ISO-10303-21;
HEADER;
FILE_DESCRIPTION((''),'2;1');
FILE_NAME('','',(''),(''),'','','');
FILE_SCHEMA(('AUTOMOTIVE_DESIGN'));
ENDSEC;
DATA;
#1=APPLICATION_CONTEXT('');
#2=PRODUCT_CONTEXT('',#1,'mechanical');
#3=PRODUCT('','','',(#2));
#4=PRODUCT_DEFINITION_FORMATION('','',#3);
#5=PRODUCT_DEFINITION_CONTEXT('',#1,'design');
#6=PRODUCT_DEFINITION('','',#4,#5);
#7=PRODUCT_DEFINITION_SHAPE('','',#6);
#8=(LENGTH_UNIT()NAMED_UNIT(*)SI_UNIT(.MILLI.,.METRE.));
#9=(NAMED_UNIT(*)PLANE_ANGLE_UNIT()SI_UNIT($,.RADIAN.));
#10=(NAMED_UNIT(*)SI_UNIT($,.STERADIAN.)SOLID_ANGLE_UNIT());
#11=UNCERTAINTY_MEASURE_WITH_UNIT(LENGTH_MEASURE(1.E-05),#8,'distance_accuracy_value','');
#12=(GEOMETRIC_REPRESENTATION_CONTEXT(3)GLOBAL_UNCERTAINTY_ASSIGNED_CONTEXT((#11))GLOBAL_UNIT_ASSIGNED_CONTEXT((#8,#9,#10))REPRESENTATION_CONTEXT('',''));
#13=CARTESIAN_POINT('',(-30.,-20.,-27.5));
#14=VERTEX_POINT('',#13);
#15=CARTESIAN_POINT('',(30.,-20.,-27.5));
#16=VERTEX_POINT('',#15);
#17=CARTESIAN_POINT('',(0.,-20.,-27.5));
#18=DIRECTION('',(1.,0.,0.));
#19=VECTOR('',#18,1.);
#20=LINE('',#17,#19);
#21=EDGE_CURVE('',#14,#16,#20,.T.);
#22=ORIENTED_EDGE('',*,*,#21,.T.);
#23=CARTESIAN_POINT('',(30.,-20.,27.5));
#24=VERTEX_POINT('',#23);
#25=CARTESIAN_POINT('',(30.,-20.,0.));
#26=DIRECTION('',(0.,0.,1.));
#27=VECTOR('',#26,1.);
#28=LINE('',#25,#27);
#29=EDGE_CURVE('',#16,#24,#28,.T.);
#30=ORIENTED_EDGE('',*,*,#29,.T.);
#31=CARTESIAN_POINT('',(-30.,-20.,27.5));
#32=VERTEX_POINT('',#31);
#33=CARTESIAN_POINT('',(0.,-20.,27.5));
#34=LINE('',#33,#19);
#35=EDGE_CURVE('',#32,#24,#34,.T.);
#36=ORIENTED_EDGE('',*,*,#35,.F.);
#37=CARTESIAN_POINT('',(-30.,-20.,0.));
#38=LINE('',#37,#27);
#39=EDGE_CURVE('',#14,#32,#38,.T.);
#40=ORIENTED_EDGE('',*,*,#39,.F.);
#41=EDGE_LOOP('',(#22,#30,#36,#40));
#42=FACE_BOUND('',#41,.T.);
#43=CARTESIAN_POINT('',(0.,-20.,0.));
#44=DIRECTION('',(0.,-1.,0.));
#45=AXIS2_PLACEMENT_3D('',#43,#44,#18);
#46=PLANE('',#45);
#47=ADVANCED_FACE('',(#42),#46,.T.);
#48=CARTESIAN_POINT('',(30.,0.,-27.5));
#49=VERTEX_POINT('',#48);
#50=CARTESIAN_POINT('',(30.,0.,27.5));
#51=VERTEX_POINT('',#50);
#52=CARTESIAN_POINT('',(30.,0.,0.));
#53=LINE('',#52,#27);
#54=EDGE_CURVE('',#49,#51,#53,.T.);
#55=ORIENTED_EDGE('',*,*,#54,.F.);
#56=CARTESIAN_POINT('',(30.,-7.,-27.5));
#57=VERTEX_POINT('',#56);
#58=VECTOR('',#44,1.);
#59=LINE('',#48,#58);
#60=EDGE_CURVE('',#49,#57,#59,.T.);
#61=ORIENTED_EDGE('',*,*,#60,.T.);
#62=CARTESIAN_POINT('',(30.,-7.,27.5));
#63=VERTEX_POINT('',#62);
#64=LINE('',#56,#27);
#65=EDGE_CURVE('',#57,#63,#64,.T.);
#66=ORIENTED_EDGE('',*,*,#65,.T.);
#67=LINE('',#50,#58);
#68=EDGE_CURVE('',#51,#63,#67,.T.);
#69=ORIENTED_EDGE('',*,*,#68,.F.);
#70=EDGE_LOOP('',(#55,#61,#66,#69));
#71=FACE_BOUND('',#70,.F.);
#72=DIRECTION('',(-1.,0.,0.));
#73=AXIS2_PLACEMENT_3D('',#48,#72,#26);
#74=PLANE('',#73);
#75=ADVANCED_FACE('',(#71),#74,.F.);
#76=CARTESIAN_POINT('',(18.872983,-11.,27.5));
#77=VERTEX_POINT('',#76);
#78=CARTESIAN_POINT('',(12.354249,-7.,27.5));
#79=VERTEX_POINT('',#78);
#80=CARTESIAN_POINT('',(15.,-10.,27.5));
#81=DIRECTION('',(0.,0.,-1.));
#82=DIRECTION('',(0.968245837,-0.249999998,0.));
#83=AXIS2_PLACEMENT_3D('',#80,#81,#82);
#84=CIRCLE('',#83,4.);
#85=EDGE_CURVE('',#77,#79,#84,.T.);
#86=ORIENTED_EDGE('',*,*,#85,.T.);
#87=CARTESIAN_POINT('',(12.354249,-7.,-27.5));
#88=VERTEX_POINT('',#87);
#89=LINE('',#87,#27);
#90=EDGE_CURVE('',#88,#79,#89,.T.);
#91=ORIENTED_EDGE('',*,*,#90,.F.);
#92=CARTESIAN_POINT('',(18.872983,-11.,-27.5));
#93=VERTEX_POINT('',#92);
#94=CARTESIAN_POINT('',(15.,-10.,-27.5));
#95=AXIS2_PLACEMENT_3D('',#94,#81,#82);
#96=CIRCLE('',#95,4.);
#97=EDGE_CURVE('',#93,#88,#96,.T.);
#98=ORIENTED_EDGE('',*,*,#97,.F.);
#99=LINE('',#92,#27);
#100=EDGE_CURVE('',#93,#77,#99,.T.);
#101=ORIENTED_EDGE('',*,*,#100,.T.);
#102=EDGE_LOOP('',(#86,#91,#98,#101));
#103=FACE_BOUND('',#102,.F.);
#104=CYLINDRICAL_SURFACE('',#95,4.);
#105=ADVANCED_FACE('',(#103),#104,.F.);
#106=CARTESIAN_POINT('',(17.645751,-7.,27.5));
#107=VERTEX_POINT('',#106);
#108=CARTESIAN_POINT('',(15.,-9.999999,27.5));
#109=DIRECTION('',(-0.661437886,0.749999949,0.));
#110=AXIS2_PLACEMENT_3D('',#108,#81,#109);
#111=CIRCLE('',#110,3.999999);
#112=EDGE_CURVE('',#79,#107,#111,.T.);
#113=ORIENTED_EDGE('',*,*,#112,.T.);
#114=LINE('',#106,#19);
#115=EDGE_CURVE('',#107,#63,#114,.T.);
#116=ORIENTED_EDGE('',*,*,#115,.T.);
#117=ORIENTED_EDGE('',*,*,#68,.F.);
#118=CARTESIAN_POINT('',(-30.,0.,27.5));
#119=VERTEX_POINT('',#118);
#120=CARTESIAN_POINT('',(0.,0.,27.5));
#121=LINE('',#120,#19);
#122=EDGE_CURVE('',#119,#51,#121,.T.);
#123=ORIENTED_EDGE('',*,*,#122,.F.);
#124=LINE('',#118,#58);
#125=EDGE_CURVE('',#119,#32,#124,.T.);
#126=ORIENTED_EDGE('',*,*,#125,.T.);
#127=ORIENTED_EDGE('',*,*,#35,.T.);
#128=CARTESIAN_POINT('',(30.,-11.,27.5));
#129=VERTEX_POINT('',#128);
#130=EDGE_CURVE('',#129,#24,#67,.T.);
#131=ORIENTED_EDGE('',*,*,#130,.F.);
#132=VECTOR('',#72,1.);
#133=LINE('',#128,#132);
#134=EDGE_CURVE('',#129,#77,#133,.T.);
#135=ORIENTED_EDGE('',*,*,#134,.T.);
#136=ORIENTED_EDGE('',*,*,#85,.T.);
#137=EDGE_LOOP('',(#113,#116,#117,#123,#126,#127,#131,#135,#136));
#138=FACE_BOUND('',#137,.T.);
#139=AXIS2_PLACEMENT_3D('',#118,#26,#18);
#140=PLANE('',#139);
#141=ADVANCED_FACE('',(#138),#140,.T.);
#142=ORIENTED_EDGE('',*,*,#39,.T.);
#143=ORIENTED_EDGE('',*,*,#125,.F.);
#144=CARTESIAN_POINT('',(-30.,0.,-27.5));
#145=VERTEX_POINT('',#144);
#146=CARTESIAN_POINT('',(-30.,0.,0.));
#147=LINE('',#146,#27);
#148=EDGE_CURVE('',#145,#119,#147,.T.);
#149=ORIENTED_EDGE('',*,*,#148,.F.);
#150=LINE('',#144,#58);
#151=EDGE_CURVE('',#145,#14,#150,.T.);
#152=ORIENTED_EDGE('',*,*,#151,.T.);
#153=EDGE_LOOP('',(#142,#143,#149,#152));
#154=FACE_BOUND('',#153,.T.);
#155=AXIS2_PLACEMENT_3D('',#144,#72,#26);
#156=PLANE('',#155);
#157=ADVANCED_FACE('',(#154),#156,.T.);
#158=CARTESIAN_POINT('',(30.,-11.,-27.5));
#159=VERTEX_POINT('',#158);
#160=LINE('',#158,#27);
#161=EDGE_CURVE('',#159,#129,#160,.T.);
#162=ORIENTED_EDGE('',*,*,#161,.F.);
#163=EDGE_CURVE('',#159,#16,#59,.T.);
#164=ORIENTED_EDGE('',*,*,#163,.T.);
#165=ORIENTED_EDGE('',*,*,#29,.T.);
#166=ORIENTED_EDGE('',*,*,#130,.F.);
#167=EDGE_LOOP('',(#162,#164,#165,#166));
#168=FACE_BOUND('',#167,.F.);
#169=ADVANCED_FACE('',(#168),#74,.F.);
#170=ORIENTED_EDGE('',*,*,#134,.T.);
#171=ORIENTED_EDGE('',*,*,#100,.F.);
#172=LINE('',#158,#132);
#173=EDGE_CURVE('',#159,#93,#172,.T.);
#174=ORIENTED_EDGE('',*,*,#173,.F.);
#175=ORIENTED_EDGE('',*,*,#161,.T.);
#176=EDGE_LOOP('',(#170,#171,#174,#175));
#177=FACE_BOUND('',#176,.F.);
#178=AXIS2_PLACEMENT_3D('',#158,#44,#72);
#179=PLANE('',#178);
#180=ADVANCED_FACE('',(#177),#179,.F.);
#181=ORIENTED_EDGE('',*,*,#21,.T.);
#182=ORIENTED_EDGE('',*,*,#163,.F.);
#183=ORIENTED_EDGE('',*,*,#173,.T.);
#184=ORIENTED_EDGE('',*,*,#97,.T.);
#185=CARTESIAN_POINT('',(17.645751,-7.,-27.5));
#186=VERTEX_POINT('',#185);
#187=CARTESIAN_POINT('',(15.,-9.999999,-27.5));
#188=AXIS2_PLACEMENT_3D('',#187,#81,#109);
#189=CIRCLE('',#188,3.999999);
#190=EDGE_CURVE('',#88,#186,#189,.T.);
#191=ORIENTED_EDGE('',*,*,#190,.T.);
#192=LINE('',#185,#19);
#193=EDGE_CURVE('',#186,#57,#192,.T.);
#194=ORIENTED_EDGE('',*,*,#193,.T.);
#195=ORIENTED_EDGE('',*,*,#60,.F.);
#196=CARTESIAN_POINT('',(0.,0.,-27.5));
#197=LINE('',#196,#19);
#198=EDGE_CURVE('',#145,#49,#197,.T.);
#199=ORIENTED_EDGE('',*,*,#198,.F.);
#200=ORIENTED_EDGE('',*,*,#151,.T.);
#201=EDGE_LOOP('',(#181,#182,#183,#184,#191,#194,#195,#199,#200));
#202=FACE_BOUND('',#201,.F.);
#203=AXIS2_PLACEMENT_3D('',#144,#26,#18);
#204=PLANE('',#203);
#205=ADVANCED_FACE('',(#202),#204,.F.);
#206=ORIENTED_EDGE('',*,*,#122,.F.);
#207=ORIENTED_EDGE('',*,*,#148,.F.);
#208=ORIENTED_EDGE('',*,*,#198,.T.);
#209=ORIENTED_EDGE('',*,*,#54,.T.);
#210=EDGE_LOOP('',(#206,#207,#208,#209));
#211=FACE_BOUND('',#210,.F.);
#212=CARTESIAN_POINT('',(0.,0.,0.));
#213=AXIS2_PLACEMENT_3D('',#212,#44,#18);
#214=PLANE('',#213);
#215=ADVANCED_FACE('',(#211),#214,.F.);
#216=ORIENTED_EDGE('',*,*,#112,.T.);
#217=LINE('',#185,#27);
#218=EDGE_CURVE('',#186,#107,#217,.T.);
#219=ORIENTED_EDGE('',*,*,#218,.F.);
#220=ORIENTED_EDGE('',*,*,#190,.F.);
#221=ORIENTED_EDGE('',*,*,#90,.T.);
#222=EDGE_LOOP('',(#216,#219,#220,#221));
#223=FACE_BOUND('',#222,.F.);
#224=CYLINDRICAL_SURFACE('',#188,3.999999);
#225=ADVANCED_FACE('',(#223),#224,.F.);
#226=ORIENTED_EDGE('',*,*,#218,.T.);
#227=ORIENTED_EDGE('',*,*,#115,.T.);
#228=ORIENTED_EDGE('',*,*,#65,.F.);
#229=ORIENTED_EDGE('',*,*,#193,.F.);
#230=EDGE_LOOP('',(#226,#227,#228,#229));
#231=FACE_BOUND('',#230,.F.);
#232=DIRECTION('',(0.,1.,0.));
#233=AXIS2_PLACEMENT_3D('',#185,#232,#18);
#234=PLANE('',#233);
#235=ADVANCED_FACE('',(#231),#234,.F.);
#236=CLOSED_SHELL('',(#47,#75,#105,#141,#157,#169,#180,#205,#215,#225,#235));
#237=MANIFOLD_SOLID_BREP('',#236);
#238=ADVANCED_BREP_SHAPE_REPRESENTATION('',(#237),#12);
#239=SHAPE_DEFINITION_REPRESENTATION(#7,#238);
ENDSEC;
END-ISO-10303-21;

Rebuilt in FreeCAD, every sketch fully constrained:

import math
import FreeCAD as App
import Part
import Sketcher

V = App.Vector


def add_polygon(sketch, points):
    """Adds a closed chain of lines whose ends are joined by coincident constraints."""
    first, n = sketch.GeometryCount, len(points)
    for a, b in zip(points, points[1:] + points[:1]):
        sketch.addGeometry(Part.LineSegment(App.Vector(*a, 0), App.Vector(*b, 0)), False)
    for i in range(n):
        sketch.addConstraint(Sketcher.Constraint("Coincident", first + i, 2, first + (i + 1) % n, 1))

doc = App.newDocument("Part")
params = doc.addObject("Spreadsheet::Sheet", "Params")
for row, (alias, value) in enumerate([
    ("sketch1_width", "60 mm"),
    ("sketch1_height", "55 mm"),
    ("pad1_length", "20 mm"),
    ("sketch2_radius", "4 mm"),
    ("sketch2_height", "4 mm"),
], start=1):
    params.set(f"A{row}", alias)
    params.set(f"B{row}", "=" + value)
    params.setAlias(f"B{row}", alias)

body = doc.addObject("PartDesign::Body", "Body")

# Sketch on XZ plane
sketch1 = doc.addObject("Sketcher::SketchObject", "Sketch")
body.addObject(sketch1)
sketch1.AttachmentSupport = (doc.XZ_Plane, [""])
sketch1.MapMode = "FlatFace"
add_polygon(sketch1, [(-30, 28), (-30, -28), (30, -28), (30, 28)])  # lines 0-3
sketch1.addConstraint([
    Sketcher.Constraint("Vertical", 0),
    Sketcher.Constraint("Horizontal", 1),
    Sketcher.Constraint("Vertical", 2),
    Sketcher.Constraint("Horizontal", 3),
    Sketcher.Constraint("Symmetric", 0, 2, 2, 2, -1, 1),
    Sketcher.Constraint("DistanceX", 1, 1, 1, 2, 60.0),
    Sketcher.Constraint("DistanceY", 0, 2, 0, 1, 55.0),
])
sketch1.setExpression("Constraints[9]", "Params.sketch1_width")
sketch1.setExpression("Constraints[10]", "Params.sketch1_height")
pad1 = doc.addObject("PartDesign::Pad", "Pad")
body.addObject(pad1)
pad1.Profile = sketch1
pad1.setExpression("Length", "Params.pad1_length")

# Sketch on XY plane
sketch2 = doc.addObject("Sketcher::SketchObject", "Sketch001")
body.addObject(sketch2)
sketch2.AttachmentSupport = (doc.XY_Plane, [""])
sketch2.MapMode = "FlatFace"
sketch2.AttachmentOffset = App.Placement(V(0, 0, -27.5), App.Rotation())
sketch2.addGeometry([
    Part.LineSegment(V(17.6, -7, 0), V(30, -7, 0)),  # 0
    Part.LineSegment(V(30, -7, 0), V(30, -11, 0)),  # 1
    Part.LineSegment(V(30, -11, 0), V(18.9, -11, 0)),  # 2
    Part.ArcOfCircle(Part.Circle(V(15, -10, 0), V(0, 0, 1), 4), math.radians(131), math.radians(346)),  # 3
    Part.ArcOfCircle(Part.Circle(V(15, -10, 0), V(0, 0, 1), 4), math.radians(49), math.radians(131)),  # 4
], False)
sketch2.addConstraint([
    Sketcher.Constraint("Coincident", 0, 2, 1, 1),
    Sketcher.Constraint("Coincident", 1, 2, 2, 1),
    Sketcher.Constraint("Coincident", 2, 2, 3, 2),
    Sketcher.Constraint("Tangent", 3, 1, 4, 2),
    Sketcher.Constraint("Coincident", 4, 1, 0, 1),
    Sketcher.Constraint("Horizontal", 0),
    Sketcher.Constraint("Vertical", 1),
    Sketcher.Constraint("Horizontal", 2),
    Sketcher.Constraint("Equal", 3, 4),
    Sketcher.Constraint("Horizontal", 0, 2, 3, 1),
    Sketcher.Constraint("Radius", 3, 4.0),
    Sketcher.Constraint("DistanceY", 1, 2, 1, 1, 4.0),
    Sketcher.Constraint("DistanceX", -1, 1, 3, 3, 15.0),
    Sketcher.Constraint("DistanceY", 3, 3, -1, 1, 10.0),
    Sketcher.Constraint("DistanceX", -1, 1, 0, 2, 30.0),
    Sketcher.Constraint("DistanceY", 0, 2, -1, 1, 7.0),
])
sketch2.setExpression("Constraints[10]", "Params.sketch2_radius")
sketch2.setExpression("Constraints[11]", "Params.sketch2_height")
pocket1 = doc.addObject("PartDesign::Pocket", "Pocket")
body.addObject(pocket1)
pocket1.Profile = sketch2
pocket1.Type = "ThroughAll"
pocket1.Reversed = True

doc.recompute()
